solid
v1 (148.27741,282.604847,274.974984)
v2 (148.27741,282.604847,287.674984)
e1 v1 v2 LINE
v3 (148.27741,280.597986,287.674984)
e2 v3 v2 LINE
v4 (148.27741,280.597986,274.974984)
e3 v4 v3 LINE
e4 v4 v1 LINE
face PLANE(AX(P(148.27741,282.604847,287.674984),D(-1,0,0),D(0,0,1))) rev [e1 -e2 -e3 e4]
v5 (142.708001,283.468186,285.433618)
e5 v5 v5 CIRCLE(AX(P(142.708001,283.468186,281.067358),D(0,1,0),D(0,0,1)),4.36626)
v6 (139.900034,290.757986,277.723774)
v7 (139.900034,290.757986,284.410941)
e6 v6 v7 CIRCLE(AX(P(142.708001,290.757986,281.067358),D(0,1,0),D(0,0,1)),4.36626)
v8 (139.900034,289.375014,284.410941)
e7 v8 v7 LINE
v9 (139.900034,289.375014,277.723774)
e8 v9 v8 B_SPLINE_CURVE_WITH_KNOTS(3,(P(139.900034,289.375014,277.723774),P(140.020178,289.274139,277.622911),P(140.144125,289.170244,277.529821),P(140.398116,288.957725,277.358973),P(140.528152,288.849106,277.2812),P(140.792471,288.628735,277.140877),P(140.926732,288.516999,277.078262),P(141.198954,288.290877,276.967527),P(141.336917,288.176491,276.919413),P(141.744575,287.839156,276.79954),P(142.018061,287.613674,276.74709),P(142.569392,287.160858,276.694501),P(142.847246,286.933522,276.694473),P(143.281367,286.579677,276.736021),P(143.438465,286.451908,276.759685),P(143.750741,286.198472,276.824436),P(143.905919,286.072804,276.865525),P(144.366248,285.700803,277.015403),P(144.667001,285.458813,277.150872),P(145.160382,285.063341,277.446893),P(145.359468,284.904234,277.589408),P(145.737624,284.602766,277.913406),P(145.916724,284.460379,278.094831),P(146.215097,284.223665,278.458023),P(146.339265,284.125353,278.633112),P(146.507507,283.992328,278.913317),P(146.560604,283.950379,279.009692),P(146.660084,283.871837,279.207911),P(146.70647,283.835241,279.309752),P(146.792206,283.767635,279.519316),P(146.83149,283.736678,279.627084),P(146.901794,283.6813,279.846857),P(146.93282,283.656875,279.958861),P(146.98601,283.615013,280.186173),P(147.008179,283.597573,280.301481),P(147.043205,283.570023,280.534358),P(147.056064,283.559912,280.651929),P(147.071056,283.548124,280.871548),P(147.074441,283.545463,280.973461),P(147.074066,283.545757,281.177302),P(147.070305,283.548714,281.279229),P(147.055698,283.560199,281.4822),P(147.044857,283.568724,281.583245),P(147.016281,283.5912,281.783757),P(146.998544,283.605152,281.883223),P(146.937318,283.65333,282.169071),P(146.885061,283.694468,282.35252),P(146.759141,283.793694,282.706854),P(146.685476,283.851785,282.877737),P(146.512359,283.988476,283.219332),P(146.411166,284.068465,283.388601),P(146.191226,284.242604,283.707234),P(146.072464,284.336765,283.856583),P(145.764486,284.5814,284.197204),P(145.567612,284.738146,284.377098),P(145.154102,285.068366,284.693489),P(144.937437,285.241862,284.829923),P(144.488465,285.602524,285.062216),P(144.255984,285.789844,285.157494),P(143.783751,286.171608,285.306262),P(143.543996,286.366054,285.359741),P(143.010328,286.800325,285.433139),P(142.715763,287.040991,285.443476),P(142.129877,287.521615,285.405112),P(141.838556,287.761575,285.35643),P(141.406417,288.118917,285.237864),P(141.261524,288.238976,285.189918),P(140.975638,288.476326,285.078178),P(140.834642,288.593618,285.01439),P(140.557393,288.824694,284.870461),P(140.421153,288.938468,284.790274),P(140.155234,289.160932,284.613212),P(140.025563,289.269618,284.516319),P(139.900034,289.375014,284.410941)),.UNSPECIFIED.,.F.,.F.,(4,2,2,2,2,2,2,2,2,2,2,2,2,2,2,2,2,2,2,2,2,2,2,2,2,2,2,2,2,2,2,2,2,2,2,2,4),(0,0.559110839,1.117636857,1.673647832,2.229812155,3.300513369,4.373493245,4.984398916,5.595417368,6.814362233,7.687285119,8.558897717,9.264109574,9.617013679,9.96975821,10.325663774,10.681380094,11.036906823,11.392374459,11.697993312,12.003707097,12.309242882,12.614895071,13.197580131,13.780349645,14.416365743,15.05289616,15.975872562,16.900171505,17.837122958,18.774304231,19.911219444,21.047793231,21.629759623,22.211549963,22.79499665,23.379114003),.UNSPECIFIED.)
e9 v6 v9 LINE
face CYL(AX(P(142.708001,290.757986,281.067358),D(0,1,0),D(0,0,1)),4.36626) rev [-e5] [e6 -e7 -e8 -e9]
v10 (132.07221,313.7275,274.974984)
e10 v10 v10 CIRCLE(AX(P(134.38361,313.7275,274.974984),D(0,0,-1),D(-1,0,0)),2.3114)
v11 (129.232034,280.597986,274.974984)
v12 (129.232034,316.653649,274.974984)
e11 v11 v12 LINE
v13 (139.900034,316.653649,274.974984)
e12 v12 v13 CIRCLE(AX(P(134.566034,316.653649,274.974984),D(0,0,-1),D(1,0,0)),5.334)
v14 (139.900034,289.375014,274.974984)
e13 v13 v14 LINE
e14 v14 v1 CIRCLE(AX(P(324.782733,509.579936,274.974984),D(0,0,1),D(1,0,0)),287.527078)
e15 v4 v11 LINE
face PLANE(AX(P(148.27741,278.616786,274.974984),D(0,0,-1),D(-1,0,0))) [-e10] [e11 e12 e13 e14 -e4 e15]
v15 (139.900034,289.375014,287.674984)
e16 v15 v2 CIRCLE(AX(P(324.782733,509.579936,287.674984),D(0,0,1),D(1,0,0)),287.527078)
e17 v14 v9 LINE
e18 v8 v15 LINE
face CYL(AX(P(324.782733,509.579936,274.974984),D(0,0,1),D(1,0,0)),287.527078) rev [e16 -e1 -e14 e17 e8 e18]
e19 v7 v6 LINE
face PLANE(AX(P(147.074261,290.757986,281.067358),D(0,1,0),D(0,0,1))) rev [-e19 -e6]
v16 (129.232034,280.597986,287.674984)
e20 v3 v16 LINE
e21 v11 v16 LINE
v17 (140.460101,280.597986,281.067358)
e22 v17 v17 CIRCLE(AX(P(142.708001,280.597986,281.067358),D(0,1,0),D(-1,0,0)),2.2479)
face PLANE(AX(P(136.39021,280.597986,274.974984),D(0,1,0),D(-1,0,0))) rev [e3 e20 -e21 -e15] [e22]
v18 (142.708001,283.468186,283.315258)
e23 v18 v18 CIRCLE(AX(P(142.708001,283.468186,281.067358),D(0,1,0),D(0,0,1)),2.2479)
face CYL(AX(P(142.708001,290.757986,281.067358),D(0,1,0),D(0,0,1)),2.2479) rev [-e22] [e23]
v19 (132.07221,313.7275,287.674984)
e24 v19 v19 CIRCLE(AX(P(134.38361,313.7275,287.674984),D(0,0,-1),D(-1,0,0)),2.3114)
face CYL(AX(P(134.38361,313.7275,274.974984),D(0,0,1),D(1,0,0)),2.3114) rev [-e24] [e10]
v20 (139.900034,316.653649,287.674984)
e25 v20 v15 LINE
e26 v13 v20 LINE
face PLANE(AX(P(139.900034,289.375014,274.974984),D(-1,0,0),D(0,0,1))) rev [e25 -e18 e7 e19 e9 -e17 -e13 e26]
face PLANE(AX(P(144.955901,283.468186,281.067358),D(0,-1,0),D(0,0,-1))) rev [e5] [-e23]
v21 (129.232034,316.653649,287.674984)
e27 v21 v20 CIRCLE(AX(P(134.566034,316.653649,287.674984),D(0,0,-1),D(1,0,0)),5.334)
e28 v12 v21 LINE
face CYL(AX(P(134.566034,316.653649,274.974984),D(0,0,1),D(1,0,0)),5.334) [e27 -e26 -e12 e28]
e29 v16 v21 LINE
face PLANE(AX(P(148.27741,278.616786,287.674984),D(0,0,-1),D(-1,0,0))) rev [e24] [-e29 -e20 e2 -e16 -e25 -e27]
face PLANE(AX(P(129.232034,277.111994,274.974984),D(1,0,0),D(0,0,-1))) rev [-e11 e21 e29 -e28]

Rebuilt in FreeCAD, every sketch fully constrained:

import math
import FreeCAD as App
import Part
import Sketcher
from FreeCAD import Vector
Q = App.Units.Quantity

doc = App.newDocument("Part")
body = doc.addObject("PartDesign::Body", "Body")

sketch1 = body.newObject("Sketcher::SketchObject", "Sketch")
sketch1.AttachmentSupport = (doc.getObject("XY_Plane"), [""])
sketch1.MapMode = "FlatFace"
sketch1.AttachmentOffset = App.Placement(Vector(0, 0, 287.674984), App.Rotation())
sketch1.addGeometry([
    Part.LineSegment(Vector(152.251778, 257.179186, 0), Vector(150.25861, 257.179186, 0)),
    Part.LineSegment(Vector(150.25861, 257.179186, 0), Vector(150.25861, 278.616786, 0)),
    Part.ArcOfCircle(Part.Circle(Vector(148.27741, 278.616786, 0), Vector(0, 0, 1), 1.9812), math.radians(0), math.radians(90)),
    Part.LineSegment(Vector(148.27741, 280.597986, 0), Vector(136.39021, 280.597986, 0)),
    Part.LineSegment(Vector(136.39021, 280.597986, 0), Vector(136.39021, 279.429586, 0)),
    Part.LineSegment(Vector(136.39021, 279.429586, 0), Vector(148.27741, 279.429586, 0)),
    Part.ArcOfCircle(Part.Circle(Vector(148.27741, 278.616786, 0), Vector(0, 0, 1), 0.8128), math.radians(0), math.radians(90)),
    Part.LineSegment(Vector(149.09021, 278.616786, 0), Vector(149.09021, 277.111994, 0)),
    Part.LineSegment(Vector(149.09021, 277.111994, 0), Vector(129.232034, 277.111994, 0)),
    Part.LineSegment(Vector(129.232034, 277.111994, 0), Vector(129.232034, 316.653649, 0)),
    Part.ArcOfCircle(Part.Circle(Vector(134.566034, 316.653649, 0), Vector(0, 0, 1), 5.334), math.radians(0), math.radians(180)),
    Part.LineSegment(Vector(139.900034, 316.653649, 0), Vector(139.900034, 289.375014, 0)),
    Part.ArcOfCircle(Part.Circle(Vector(324.782734, 509.579937, 0), Vector(0, 0, 1), 287.527079), math.radians(-130.016613), math.radians(-127.87013)),
    Part.ArcOfCircle(Part.Circle(Vector(148.27741, 278.616786, 0), Vector(0, 0, 1), 3.988061), math.radians(-4.749363), math.radians(90)),
    Part.LineSegment(Vector(152.251778, 278.286586, 0), Vector(152.251778, 257.179186, 0)),
    Part.Circle(Vector(134.38361, 313.7275, 0), Vector(0, 0, 1), 2.3114),
], False)
sketch1.addConstraint([
    Sketcher.Constraint("Coincident", 0, 2, 1, 1),
    Sketcher.Constraint("Tangent", 1, 2, 2, 1),
    Sketcher.Constraint("Tangent", 2, 2, 3, 1),
    Sketcher.Constraint("Coincident", 3, 2, 4, 1),
    Sketcher.Constraint("Coincident", 4, 2, 5, 1),
    Sketcher.Constraint("Tangent", 5, 2, 6, 2),
    Sketcher.Constraint("Tangent", 6, 1, 7, 1),
    Sketcher.Constraint("Coincident", 7, 2, 8, 1),
    Sketcher.Constraint("Coincident", 8, 2, 9, 1),
    Sketcher.Constraint("Tangent", 9, 2, 10, 2),
    Sketcher.Constraint("Tangent", 10, 1, 11, 1),
    Sketcher.Constraint("Coincident", 11, 2, 12, 1),
    Sketcher.Constraint("Coincident", 12, 2, 13, 2),
    Sketcher.Constraint("Coincident", 13, 1, 14, 1),
    Sketcher.Constraint("Coincident", 14, 2, 0, 1),
    Sketcher.Constraint("Horizontal", 0),
    Sketcher.Constraint("Vertical", 1),
    Sketcher.Constraint("Horizontal", 3),
    Sketcher.Constraint("Vertical", 4),
    Sketcher.Constraint("Horizontal", 5),
    Sketcher.Constraint("Vertical", 7),
    Sketcher.Constraint("Horizontal", 8),
    Sketcher.Constraint("Vertical", 9),
    Sketcher.Constraint("Vertical", 11),
    Sketcher.Constraint("Vertical", 14),
    Sketcher.Constraint("Coincident", 6, 3, 2, 3),
    Sketcher.Constraint("Coincident", 13, 3, 2, 3),
    Sketcher.Constraint("Vertical", 5, 2, 12, 2),
    Sketcher.Constraint("Radius", 10, Q("0.21 in")),
    Sketcher.Constraint("Diameter", 15, Q("0.182 in")),
    Sketcher.Constraint("Radius", 2, Q("0.078 in")),
    Sketcher.Constraint("Radius", 6, Q("0.032 in")),
    Sketcher.Constraint("DistanceX", 3, 2, 3, 1, Q("0.468 in")),
    Sketcher.Constraint("DistanceY", 1, 1, 1, 2, Q("0.844 in")),
    Sketcher.Constraint("DistanceY", 14, 2, 14, 1, Q("0.831 in")),
    Sketcher.Constraint("Radius", 12, Q("287.527079 mm")),
    Sketcher.Constraint("Radius", 13, Q("3.988061 mm")),
    Sketcher.Constraint("DistanceX", 15, 3, 6, 3, Q("0.547 in")),
    Sketcher.Constraint("DistanceY", 7, 2, 7, 1, Q("1.504791 mm")),
    Sketcher.Constraint("DistanceY", -1, 1, 15, 3, Q("313.7275 mm")),
    Sketcher.Constraint("DistanceX", 10, 3, 12, 3, Q("190.2167 mm")),
    Sketcher.Constraint("DistanceX", 8, 2, 8, 1, Q("19.858176 mm")),
    Sketcher.Constraint("DistanceY", 9, 1, 9, 2, Q("39.541655 mm")),
    Sketcher.Constraint("DistanceX", -1, 1, 2, 3, Q("148.27741 mm")),
    Sketcher.Constraint("DistanceY", -1, 1, 10, 3, Q("316.653649 mm")),
])
pad1 = body.newObject("PartDesign::Pad", "Pad")
pad1.Profile = sketch1
pad1.Length = Q("0.5 in")
pad1.Reversed = True

sketch2 = body.newObject("Sketcher::SketchObject", "Sketch001")
sketch2.AttachmentSupport = (doc.getObject("YZ_Plane"), [""])
sketch2.MapMode = "FlatFace"
sketch2.AttachmentOffset = App.Placement(Vector(0, 0, 150.258611), App.Rotation())
sketch2.addGeometry([
    Part.Circle(Vector(274.312689, 281.230197, 0), Vector(0, 0, 1), 2.3114),
    Part.Circle(Vector(261.612689, 281.230197, 0), Vector(0, 0, 1), 2.3114),
], False)
sketch2.addConstraint([
    Sketcher.Constraint("Equal", 0, 1),
    Sketcher.Constraint("Horizontal", 0, 3, 1, 3),
    Sketcher.Constraint("Diameter", 0, Q("0.182 in")),
    Sketcher.Constraint("DistanceX", 1, 3, 0, 3, Q("0.5 in")),
    Sketcher.Constraint("DistanceX", -1, 1, 0, 3, Q("274.312689 mm")),
    Sketcher.Constraint("DistanceY", -1, 1, 0, 3, Q("281.230197 mm")),
])
pocket1 = body.newObject("PartDesign::Pocket", "Pocket")
pocket1.Profile = sketch2
pocket1.Length = Q("0.5 in")
pocket1.Reversed = True

sketch3 = body.newObject("Sketcher::SketchObject", "Sketch002")
sketch3.AttachmentSupport = (doc.getObject("YZ_Plane"), [""])
sketch3.MapMode = "FlatFace"
sketch3.AttachmentOffset = App.Placement(Vector(0, 0, 142.708001), App.Rotation())
sketch3.addGeometry([
    Part.LineSegment(Vector(257.179186, 281.067358, 0), Vector(290.757986, 281.067358, 0)),
    Part.LineSegment(Vector(290.757986, 281.067358, 0), Vector(290.757986, 285.433618, 0)),
    Part.LineSegment(Vector(290.757986, 285.433618, 0), Vector(283.468186, 285.433618, 0)),
    Part.LineSegment(Vector(283.468186, 285.433618, 0), Vector(283.468186, 283.315258, 0)),
    Part.LineSegment(Vector(283.468186, 283.315258, 0), Vector(257.179186, 283.315258, 0)),
    Part.LineSegment(Vector(257.179186, 283.315258, 0), Vector(257.179186, 281.067358, 0)),
], False)
sketch3.addGeometry(Part.LineSegment(Vector(290.757986, 281.067358, 0), Vector(257.179186, 281.067358, 0)), True)
sketch3.addConstraint([
    Sketcher.Constraint("Coincident", 0, 2, 1, 1),
    Sketcher.Constraint("Coincident", 1, 2, 2, 1),
    Sketcher.Constraint("Coincident", 2, 2, 3, 1),
    Sketcher.Constraint("Coincident", 3, 2, 4, 1),
    Sketcher.Constraint("Coincident", 4, 2, 5, 1),
    Sketcher.Constraint("Coincident", 5, 2, 0, 1),
    Sketcher.Constraint("Horizontal", 0),
    Sketcher.Constraint("Vertical", 1),
    Sketcher.Constraint("Horizontal", 2),
    Sketcher.Constraint("Vertical", 3),
    Sketcher.Constraint("Horizontal", 4),
    Sketcher.Constraint("Vertical", 5),
    Sketcher.Constraint("Horizontal", 6),
    Sketcher.Constraint("Coincident", 6, 1, 0, 2),
    Sketcher.Constraint("Vertical", 4, 2, 6, 2),
    Sketcher.Constraint("DistanceX", 0, 1, 0, 2, Q("1.322 in")),
    Sketcher.Constraint("DistanceX", 2, 2, 2, 1, Q("0.287 in")),
    Sketcher.Constraint("DistanceY", 1, 1, 1, 2, Q("0.1719 in")),
    Sketcher.Constraint("DistanceY", 3, 2, 3, 1, Q("0.0834 in")),
    Sketcher.Constraint("DistanceX", -1, 1, 0, 2, Q("290.757986 mm")),
    Sketcher.Constraint("DistanceY", -1, 1, 0, 2, Q("281.067358 mm")),
])
groove = body.newObject("PartDesign::Groove", "Groove")
groove.Profile = sketch3
groove.ReferenceAxis = (sketch3, ["Axis0"])
groove.Angle = 360

sketch4 = body.newObject("Sketcher::SketchObject", "Sketch003")
sketch4.AttachmentSupport = (doc.getObject("XY_Plane"), [""])
sketch4.MapMode = "FlatFace"
sketch4.AttachmentOffset = App.Placement(Vector(0, 0, 274.974984), App.Rotation())
sketch4.addGeometry([
    Part.LineSegment(Vector(162.398928, 282.604847, 0), Vector(162.398928, 252.770882, 0)),
    Part.LineSegment(Vector(162.398928, 252.770882, 0), Vector(148.27741, 252.770882, 0)),
    Part.LineSegment(Vector(148.27741, 252.770882, 0), Vector(148.27741, 282.604847, 0)),
    Part.LineSegment(Vector(148.27741, 282.604847, 0), Vector(162.398928, 282.604847, 0)),
], False)
sketch4.addConstraint([
    Sketcher.Constraint("Coincident", 0, 2, 1, 1),
    Sketcher.Constraint("Coincident", 1, 2, 2, 1),
    Sketcher.Constraint("Coincident", 2, 2, 3, 1),
    Sketcher.Constraint("Coincident", 3, 2, 0, 1),
    Sketcher.Constraint("Vertical", 0),
    Sketcher.Constraint("Horizontal", 1),
    Sketcher.Constraint("Vertical", 2),
    Sketcher.Constraint("Horizontal", 3),
    Sketcher.Constraint("DistanceX", 1, 2, 1, 1, Q("14.121517 mm")),
    Sketcher.Constraint("DistanceY", 0, 2, 0, 1, Q("29.833964 mm")),
    Sketcher.Constraint("DistanceX", -1, 1, 1, 2, Q("148.27741 mm")),
    Sketcher.Constraint("DistanceY", -1, 1, 0, 2, Q("252.770882 mm")),
])
pocket2 = body.newObject("PartDesign::Pocket", "Pocket001")
pocket2.Profile = sketch4
pocket2.Length = Q("0.5 in")
pocket2.Reversed = True

sketch5 = body.newObject("Sketcher::SketchObject", "Sketch004")
sketch5.AttachmentSupport = (doc.getObject("XY_Plane"), [""])
sketch5.MapMode = "FlatFace"
sketch5.AttachmentOffset = App.Placement(Vector(0, 0, 274.974984), App.Rotation())
sketch5.addGeometry([
    Part.LineSegment(Vector(148.27741, 280.597986, 0), Vector(148.27741, 264.929566, 0)),
    Part.LineSegment(Vector(148.27741, 264.929566, 0), Vector(119.589596, 264.929566, 0)),
    Part.LineSegment(Vector(119.589596, 264.929566, 0), Vector(119.589596, 280.597986, 0)),
    Part.LineSegment(Vector(119.589596, 280.597986, 0), Vector(148.27741, 280.597986, 0)),
], False)
sketch5.addConstraint([
    Sketcher.Constraint("Coincident", 0, 2, 1, 1),
    Sketcher.Constraint("Coincident", 1, 2, 2, 1),
    Sketcher.Constraint("Coincident", 2, 2, 3, 1),
    Sketcher.Constraint("Coincident", 3, 2, 0, 1),
    Sketcher.Constraint("Vertical", 0),
    Sketcher.Constraint("Horizontal", 1),
    Sketcher.Constraint("Vertical", 2),
    Sketcher.Constraint("Horizontal", 3),
    Sketcher.Constraint("DistanceY", 0, 2, 0, 1, Q("15.668419 mm")),
    Sketcher.Constraint("DistanceX", 1, 2, 1, 1, Q("28.687815 mm")),
    Sketcher.Constraint("DistanceX", -1, 1, 0, 2, Q("148.27741 mm")),
    Sketcher.Constraint("DistanceY", -1, 1, 0, 2, Q("264.929566 mm")),
])
pocket3 = body.newObject("PartDesign::Pocket", "Pocket002")
pocket3.Profile = sketch5
pocket3.Length = Q("0.5 in")
pocket3.Reversed = True

doc.recompute()
